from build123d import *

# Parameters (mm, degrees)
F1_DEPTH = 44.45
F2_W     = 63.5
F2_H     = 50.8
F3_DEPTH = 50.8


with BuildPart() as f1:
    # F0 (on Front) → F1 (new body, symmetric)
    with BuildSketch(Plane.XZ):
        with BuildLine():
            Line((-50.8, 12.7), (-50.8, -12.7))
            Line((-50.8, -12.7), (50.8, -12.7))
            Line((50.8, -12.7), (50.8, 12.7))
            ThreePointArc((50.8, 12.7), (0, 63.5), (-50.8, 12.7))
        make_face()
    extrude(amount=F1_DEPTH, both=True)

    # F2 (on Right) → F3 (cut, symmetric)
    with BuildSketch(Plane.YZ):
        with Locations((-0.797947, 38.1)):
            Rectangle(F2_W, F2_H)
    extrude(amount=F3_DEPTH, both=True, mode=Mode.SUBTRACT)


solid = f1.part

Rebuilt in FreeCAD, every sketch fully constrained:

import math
import FreeCAD as App
import Part
import Sketcher
from FreeCAD import Vector
Q = App.Units.Quantity


def add_polygon(sketch, points):
    """Adds a closed chain of lines whose ends are joined by coincident constraints."""
    first, n = sketch.GeometryCount, len(points)
    for a, b in zip(points, points[1:] + points[:1]):
        sketch.addGeometry(Part.LineSegment(App.Vector(*a, 0), App.Vector(*b, 0)), False)
    for i in range(n):
        sketch.addConstraint(Sketcher.Constraint("Coincident", first + i, 2, first + (i + 1) % n, 1))

doc = App.newDocument("Part")
body = doc.addObject("PartDesign::Body", "Body")

# Sketch on XZ plane
sketch1 = doc.addObject("Sketcher::SketchObject", "Sketch")
body.addObject(sketch1)
sketch1.AttachmentSupport = (doc.XZ_Plane, [""])
sketch1.MapMode = "FlatFace"
sketch1.addGeometry(Part.LineSegment(Vector(-51, 13, 0), Vector(-51, -13, 0)), False)
sketch1.addGeometry(Part.LineSegment(Vector(-51, -13, 0), Vector(51, -13, 0)), False)
sketch1.addGeometry(Part.LineSegment(Vector(51, -13, 0), Vector(51, 13, 0)), False)
sketch1.addGeometry(Part.ArcOfCircle(Part.Circle(Vector(0, 13, 0), Vector(0, 0, 1), 51), math.radians(0), math.radians(180)), False)
sketch1.addConstraint(Sketcher.Constraint("Coincident", 0, 2, 1, 1))
sketch1.addConstraint(Sketcher.Constraint("Coincident", 1, 2, 2, 1))
sketch1.addConstraint(Sketcher.Constraint("Tangent", 2, 2, 3, 1))
sketch1.addConstraint(Sketcher.Constraint("Tangent", 3, 2, 0, 1))
sketch1.addConstraint(Sketcher.Constraint("Vertical", 0))
sketch1.addConstraint(Sketcher.Constraint("Horizontal", 1))
sketch1.addConstraint(Sketcher.Constraint("Vertical", 2))
sketch1.addConstraint(Sketcher.Constraint("Symmetric", 0, 2, 2, 2, -1, 1))
sketch1.addConstraint(Sketcher.Constraint("Radius", 3, Q("2 in")))
sketch1.addConstraint(Sketcher.Constraint("DistanceY", 0, 2, 0, 1, Q("1 in")))
pad1 = doc.addObject("PartDesign::Pad", "Pad")
body.addObject(pad1)
pad1.Profile = sketch1
pad1.Length = Q("3.5 in")
pad1.Midplane = True

# Sketch on YZ plane
sketch2 = doc.addObject("Sketcher::SketchObject", "Sketch001")
body.addObject(sketch2)
sketch2.AttachmentSupport = (doc.YZ_Plane, [""])
sketch2.MapMode = "FlatFace"
add_polygon(sketch2, [(-33, 64), (-33, 13), (31, 13), (31, 64)])  # lines 0-3
sketch2.addConstraint(Sketcher.Constraint("Vertical", 0))
sketch2.addConstraint(Sketcher.Constraint("Horizontal", 1))
sketch2.addConstraint(Sketcher.Constraint("Vertical", 2))
sketch2.addConstraint(Sketcher.Constraint("Horizontal", 3))
sketch2.addConstraint(Sketcher.Constraint("DistanceY", 0, 2, 0, 1, Q("2 in")))
sketch2.addConstraint(Sketcher.Constraint("DistanceX", 1, 1, 1, 2, Q("2.5 in")))
sketch2.addConstraint(Sketcher.Constraint("DistanceY", -1, 1, 0, 2, Q("0.5 in")))
sketch2.addConstraint(Sketcher.Constraint("DistanceX", 0, 2, -1, 1, 32.547947))
pocket1 = doc.addObject("PartDesign::Pocket", "Pocket")
body.addObject(pocket1)
pocket1.Profile = sketch2
pocket1.Length = Q("4 in")
pocket1.Midplane = True

doc.recompute()
